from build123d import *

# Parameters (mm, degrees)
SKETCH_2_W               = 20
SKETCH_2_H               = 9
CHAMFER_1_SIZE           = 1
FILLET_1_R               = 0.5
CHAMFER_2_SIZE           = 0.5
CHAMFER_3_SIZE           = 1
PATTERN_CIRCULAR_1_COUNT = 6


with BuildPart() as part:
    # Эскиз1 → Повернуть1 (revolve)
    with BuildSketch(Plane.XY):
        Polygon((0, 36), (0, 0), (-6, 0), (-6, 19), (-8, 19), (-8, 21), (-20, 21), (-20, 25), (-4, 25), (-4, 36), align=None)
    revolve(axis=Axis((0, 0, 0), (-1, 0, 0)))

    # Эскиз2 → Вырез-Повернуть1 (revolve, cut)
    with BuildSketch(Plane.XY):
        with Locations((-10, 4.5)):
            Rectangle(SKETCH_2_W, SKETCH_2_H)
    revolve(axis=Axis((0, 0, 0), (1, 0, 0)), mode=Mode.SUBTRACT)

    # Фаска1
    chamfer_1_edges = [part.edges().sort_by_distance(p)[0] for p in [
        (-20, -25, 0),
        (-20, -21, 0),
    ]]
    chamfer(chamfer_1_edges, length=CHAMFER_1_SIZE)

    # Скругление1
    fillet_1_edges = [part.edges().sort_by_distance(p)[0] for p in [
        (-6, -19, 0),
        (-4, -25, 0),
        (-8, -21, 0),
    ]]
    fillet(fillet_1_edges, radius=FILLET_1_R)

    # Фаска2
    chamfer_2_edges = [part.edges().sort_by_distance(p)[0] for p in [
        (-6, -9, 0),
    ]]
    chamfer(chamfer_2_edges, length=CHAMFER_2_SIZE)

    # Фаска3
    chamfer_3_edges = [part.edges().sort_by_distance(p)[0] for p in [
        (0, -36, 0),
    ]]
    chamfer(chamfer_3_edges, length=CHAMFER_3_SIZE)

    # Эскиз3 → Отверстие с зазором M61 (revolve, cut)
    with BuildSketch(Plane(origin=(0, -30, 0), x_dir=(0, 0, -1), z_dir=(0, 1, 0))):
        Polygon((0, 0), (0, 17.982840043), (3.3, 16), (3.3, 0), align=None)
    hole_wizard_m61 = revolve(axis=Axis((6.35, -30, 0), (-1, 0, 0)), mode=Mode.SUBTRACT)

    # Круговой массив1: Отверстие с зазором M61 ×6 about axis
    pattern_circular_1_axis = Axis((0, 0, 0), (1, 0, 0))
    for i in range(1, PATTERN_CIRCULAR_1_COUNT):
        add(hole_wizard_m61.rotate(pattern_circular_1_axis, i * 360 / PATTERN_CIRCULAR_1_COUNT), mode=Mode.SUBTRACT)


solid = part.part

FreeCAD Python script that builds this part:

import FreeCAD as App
import Part
import Sketcher

V = App.Vector
Q = App.Units.Quantity


def edges_at(feature, points):
    """Names of the edges that pass closest to the given points."""
    edges = feature.Shape.Edges
    near = lambda p: min(range(len(edges)), key=lambda i: edges[i].distToShape(Part.Vertex(*p))[0])
    return sorted({f"Edge{near(p) + 1}" for p in points})


def add_polygon(sketch, points):
    """Adds a closed chain of lines whose ends are joined by coincident constraints."""
    first, n = sketch.GeometryCount, len(points)
    for a, b in zip(points, points[1:] + points[:1]):
        sketch.addGeometry(Part.LineSegment(App.Vector(*a, 0), App.Vector(*b, 0)), False)
    for i in range(n):
        sketch.addConstraint(Sketcher.Constraint("Coincident", first + i, 2, first + (i + 1) % n, 1))

doc = App.newDocument("Part")
body = doc.addObject("PartDesign::Body", "Body")

# Sketch on XY plane
sketch1 = body.newObject("Sketcher::SketchObject", "Sketch")
sketch1.AttachmentSupport = (doc.getObject("XY_Plane"), [""])
sketch1.MapMode = "FlatFace"
add_polygon(sketch1, [(0, 0), (0, 36), (-4, 36), (-4, 25), (-20, 25), (-20, 21), (-8, 21), (-8, 19), (-6, 19), (-6, 0)])  # lines 0-9
sketch1.addConstraint([
    Sketcher.Constraint("Vertical", 0),
    Sketcher.Constraint("Horizontal", 1),
    Sketcher.Constraint("Vertical", 2),
    Sketcher.Constraint("Horizontal", 3),
    Sketcher.Constraint("Vertical", 4),
    Sketcher.Constraint("Horizontal", 5),
    Sketcher.Constraint("Vertical", 6),
    Sketcher.Constraint("Horizontal", 7),
    Sketcher.Constraint("Vertical", 8),
    Sketcher.Constraint("Horizontal", 9),
    Sketcher.Constraint("Coincident", 9, 2, -1, 1),
    Sketcher.Constraint("Equal", 1, 4),
    Sketcher.Constraint("Equal", 7, 6),
    Sketcher.Constraint("DistanceX", 1, 2, 1, 1, Q("4 mm")),
    Sketcher.Constraint("DistanceX", 3, 2, 3, 1, Q("16 mm")),
    Sketcher.Constraint("DistanceX", 5, 1, 5, 2, Q("12 mm")),
    Sketcher.Constraint("DistanceX", 7, 1, 7, 2, Q("2 mm")),
    Sketcher.Constraint("DistanceY", 0, 1, 0, 2, Q("36 mm")),
    Sketcher.Constraint("DistanceY", 2, 2, 2, 1, Q("11 mm")),
])
revolution = body.newObject("PartDesign::Revolution", "Revolution")
revolution.Profile = sketch1
revolution.ReferenceAxis = (sketch1, ["H_Axis"])
revolution.Angle = 360

# Sketch on XY plane
sketch2 = body.newObject("Sketcher::SketchObject", "Sketch001")
sketch2.AttachmentSupport = (doc.getObject("XY_Plane"), [""])
sketch2.MapMode = "FlatFace"
add_polygon(sketch2, [(-20, 9), (-20, 0), (0, 0), (0, 9)])  # lines 0-3
sketch2.addConstraint([
    Sketcher.Constraint("Vertical", 0),
    Sketcher.Constraint("Horizontal", 1),
    Sketcher.Constraint("Vertical", 2),
    Sketcher.Constraint("Horizontal", 3),
    Sketcher.Constraint("Coincident", 1, 2, -1, 1),
    Sketcher.Constraint("DistanceX", 1, 1, 1, 2, Q("20 mm")),
    Sketcher.Constraint("DistanceY", 0, 2, 0, 1, Q("9 mm")),
])
groove = body.newObject("PartDesign::Groove", "Groove")
groove.Profile = sketch2
groove.ReferenceAxis = (sketch2, ["H_Axis"])
groove.Angle = 360
doc.recompute()

chamfer = body.newObject("PartDesign::Chamfer", "Chamfer")
chamfer.Base = (groove, edges_at(groove, [(-20, -25, 0), (-20, -21, 0)]))
chamfer.Size = 1
doc.recompute()

fillet = body.newObject("PartDesign::Fillet", "Fillet")
fillet.Base = (chamfer, edges_at(chamfer, [(-6, -19, 0), (-4, -25, 0), (-8, -21, 0)]))
fillet.Radius = 0.5
doc.recompute()

chamfer2 = body.newObject("PartDesign::Chamfer", "Chamfer001")
chamfer2.Base = (fillet, edges_at(fillet, [(-6, -9, 0)]))
chamfer2.Size = 0.5
doc.recompute()

chamfer3 = body.newObject("PartDesign::Chamfer", "Chamfer002")
chamfer3.Base = (chamfer2, edges_at(chamfer2, [(0, -36, 0)]))
chamfer3.Size = 1

# Sketch on XZ plane
sketch3 = body.newObject("Sketcher::SketchObject", "Sketch002")
sketch3.AttachmentSupport = (doc.getObject("XZ_Plane"), [""])
sketch3.MapMode = "FlatFace"
sketch3.AttachmentOffset = App.Placement(V(0, 0, 30), App.Rotation())
add_polygon(sketch3, [(-17.98284, 0), (0, 0), (0, -3.3), (-16, -3.3)])  # lines 0-3
sketch3.addConstraint([
    Sketcher.Constraint("Horizontal", 0),
    Sketcher.Constraint("Vertical", 1),
    Sketcher.Constraint("Horizontal", 2),
    Sketcher.Constraint("Coincident", 0, 2, -1, 1),
    Sketcher.Constraint("DistanceX", 2, 2, 2, 1, Q("16 mm")),
    Sketcher.Constraint("Angle", 3, Q("121 deg")),
    Sketcher.Constraint("DistanceY", 1, 2, 1, 1, Q("3.3 mm")),
])
groove2 = body.newObject("PartDesign::Groove", "Groove001")
groove2.Profile = sketch3
groove2.ReferenceAxis = (sketch3, ["H_Axis"])
groove2.Angle = 360
doc.recompute()

polarpattern = body.newObject("PartDesign::PolarPattern", "PolarPattern")
polarpattern.Originals = [groove2]
polarpattern.Axis = (doc.getObject("X_Axis"), [""])
polarpattern.Angle = 360
polarpattern.Occurrences = 6
body.Tip = polarpattern

doc.recompute()
